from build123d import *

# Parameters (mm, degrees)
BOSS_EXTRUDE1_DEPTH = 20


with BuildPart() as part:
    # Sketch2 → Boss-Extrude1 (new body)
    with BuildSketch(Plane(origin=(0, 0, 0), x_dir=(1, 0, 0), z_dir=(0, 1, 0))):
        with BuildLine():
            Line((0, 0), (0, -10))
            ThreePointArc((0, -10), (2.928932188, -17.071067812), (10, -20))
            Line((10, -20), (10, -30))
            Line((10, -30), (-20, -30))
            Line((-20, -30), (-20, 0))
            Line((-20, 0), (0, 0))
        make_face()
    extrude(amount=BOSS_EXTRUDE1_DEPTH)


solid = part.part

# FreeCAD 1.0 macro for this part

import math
import FreeCAD as App
import Part
import Sketcher

V = App.Vector
Q = App.Units.Quantity

doc = App.newDocument("Part")
params = doc.addObject("Spreadsheet::Sheet", "Params")
for row, (alias, value) in enumerate([
    ("sketch1_radius", "10 mm"),
    ("sketch1_width", "20 mm"),
    ("pad1_length", "20 mm"),
], start=1):
    params.set(f"A{row}", alias)
    params.set(f"B{row}", "=" + value)
    params.setAlias(f"B{row}", alias)

body = doc.addObject("PartDesign::Body", "Body")

# Sketch on XZ plane
sketch1 = body.newObject("Sketcher::SketchObject", "Sketch")
sketch1.AttachmentSupport = (doc.getObject("XZ_Plane"), [""])
sketch1.MapMode = "FlatFace"
sketch1.addGeometry(Part.LineSegment(V(0, 10, 0), V(0, 0, 0)), False)
sketch1.addGeometry(Part.LineSegment(V(0, 0, 0), V(-20, 0, 0)), False)
sketch1.addGeometry(Part.LineSegment(V(-20, 0, 0), V(-20, 30, 0)), False)
sketch1.addGeometry(Part.LineSegment(V(-20, 30, 0), V(10, 30, 0)), False)
sketch1.addGeometry(Part.LineSegment(V(10, 30, 0), V(10, 20, 0)), False)
sketch1.addGeometry(Part.ArcOfCircle(Part.Circle(V(10, 10, 0), V(0, 0, 1), 10), math.radians(90), math.radians(180)), False)
sketch1.addConstraint(Sketcher.Constraint("Coincident", 0, 2, 1, 1))
sketch1.addConstraint(Sketcher.Constraint("Coincident", 1, 2, 2, 1))
sketch1.addConstraint(Sketcher.Constraint("Coincident", 2, 2, 3, 1))
sketch1.addConstraint(Sketcher.Constraint("Coincident", 3, 2, 4, 1))
sketch1.addConstraint(Sketcher.Constraint("Coincident", 4, 2, 5, 1))
sketch1.addConstraint(Sketcher.Constraint("Tangent", 5, 2, 0, 1))
sketch1.addConstraint(Sketcher.Constraint("Vertical", 0))
sketch1.addConstraint(Sketcher.Constraint("Horizontal", 1))
sketch1.addConstraint(Sketcher.Constraint("Vertical", 2))
sketch1.addConstraint(Sketcher.Constraint("Horizontal", 3))
sketch1.addConstraint(Sketcher.Constraint("Vertical", 4))
sketch1.addConstraint(Sketcher.Constraint("Coincident", 0, 2, -1, 1))
sketch1.addConstraint(Sketcher.Constraint("Vertical", 5, 3, 3, 2))
sketch1.addConstraint(Sketcher.Constraint("Equal", 3, 2))
sketch1.addConstraint(Sketcher.Constraint("Equal", 0, 4))
sketch1.addConstraint(Sketcher.Constraint("Radius", 5, Q("10 mm")))
sketch1.addConstraint(Sketcher.Constraint("DistanceX", 1, 2, 1, 1, Q("20 mm")))
sketch1.setExpression("Constraints[15]", "Params.sketch1_radius")
sketch1.setExpression("Constraints[16]", "Params.sketch1_width")
pad1 = body.newObject("PartDesign::Pad", "Pad")
pad1.Profile = sketch1
pad1.setExpression("Length", "Params.pad1_length")
pad1.Reversed = True

doc.recompute()
